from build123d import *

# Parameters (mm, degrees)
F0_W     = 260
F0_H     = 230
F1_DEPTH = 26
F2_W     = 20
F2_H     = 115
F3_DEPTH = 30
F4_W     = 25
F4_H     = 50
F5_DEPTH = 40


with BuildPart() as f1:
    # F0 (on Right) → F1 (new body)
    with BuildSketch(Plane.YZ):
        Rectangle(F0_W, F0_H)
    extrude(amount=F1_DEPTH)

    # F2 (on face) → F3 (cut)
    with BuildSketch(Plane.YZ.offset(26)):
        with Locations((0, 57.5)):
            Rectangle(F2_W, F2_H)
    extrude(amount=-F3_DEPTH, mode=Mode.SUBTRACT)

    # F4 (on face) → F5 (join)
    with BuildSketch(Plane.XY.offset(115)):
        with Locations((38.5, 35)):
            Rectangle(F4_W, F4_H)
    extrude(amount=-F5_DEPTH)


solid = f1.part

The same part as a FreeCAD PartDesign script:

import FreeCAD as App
import Part
import Sketcher
from FreeCAD import Vector
Q = App.Units.Quantity


def add_polygon(sketch, points):
    """Adds a closed chain of lines whose ends are joined by coincident constraints."""
    first, n = sketch.GeometryCount, len(points)
    for a, b in zip(points, points[1:] + points[:1]):
        sketch.addGeometry(Part.LineSegment(App.Vector(*a, 0), App.Vector(*b, 0)), False)
    for i in range(n):
        sketch.addConstraint(Sketcher.Constraint("Coincident", first + i, 2, first + (i + 1) % n, 1))

doc = App.newDocument("Part")
body = doc.addObject("PartDesign::Body", "Body")

# Sketch on YZ plane
sketch1 = body.newObject("Sketcher::SketchObject", "Sketch")
sketch1.AttachmentSupport = (doc.getObject("YZ_Plane"), [""])
sketch1.MapMode = "FlatFace"
add_polygon(sketch1, [(-130, 115), (-130, -115), (130, -115), (130, 115)])  # lines 0-3
sketch1.addConstraint([
    Sketcher.Constraint("Vertical", 0),
    Sketcher.Constraint("Horizontal", 1),
    Sketcher.Constraint("Vertical", 2),
    Sketcher.Constraint("Horizontal", 3),
    Sketcher.Constraint("Symmetric", 0, 2, 2, 2, -1, 1),
    Sketcher.Constraint("DistanceX", 1, 1, 1, 2, Q("260 mm")),
    Sketcher.Constraint("DistanceY", 0, 2, 0, 1, Q("230 mm")),
])
pad1 = body.newObject("PartDesign::Pad", "Pad")
pad1.Profile = sketch1
pad1.Length = 26

# Sketch on YZ plane
sketch2 = body.newObject("Sketcher::SketchObject", "Sketch001")
sketch2.AttachmentSupport = (doc.getObject("YZ_Plane"), [""])
sketch2.MapMode = "FlatFace"
sketch2.AttachmentOffset = App.Placement(Vector(0, 0, 26), App.Rotation())
add_polygon(sketch2, [(-10, 115), (-10, 0), (10, 0), (10, 115)])  # lines 0-3
sketch2.addConstraint([
    Sketcher.Constraint("Vertical", 0),
    Sketcher.Constraint("Horizontal", 1),
    Sketcher.Constraint("Vertical", 2),
    Sketcher.Constraint("Horizontal", 3),
    Sketcher.Constraint("Symmetric", 0, 2, 1, 2, -1, 1),
    Sketcher.Constraint("DistanceX", 1, 1, 1, 2, Q("20 mm")),
    Sketcher.Constraint("DistanceY", 0, 2, 0, 1, Q("115 mm")),
])
pocket1 = body.newObject("PartDesign::Pocket", "Pocket")
pocket1.Profile = sketch2
pocket1.Length = 30

# Sketch on XY plane
sketch3 = body.newObject("Sketcher::SketchObject", "Sketch002")
sketch3.AttachmentSupport = (doc.getObject("XY_Plane"), [""])
sketch3.MapMode = "FlatFace"
sketch3.AttachmentOffset = App.Placement(Vector(0, 0, 115), App.Rotation())
add_polygon(sketch3, [(26, 60), (26, 10), (51, 10), (51, 60)])  # lines 0-3
sketch3.addConstraint([
    Sketcher.Constraint("Vertical", 0),
    Sketcher.Constraint("Horizontal", 1),
    Sketcher.Constraint("Vertical", 2),
    Sketcher.Constraint("Horizontal", 3),
    Sketcher.Constraint("DistanceX", 1, 1, 1, 2, Q("25 mm")),
    Sketcher.Constraint("DistanceY", 0, 2, 0, 1, Q("50 mm")),
    Sketcher.Constraint("DistanceX", -1, 1, 0, 2, Q("26 mm")),
    Sketcher.Constraint("DistanceY", -1, 1, 0, 2, Q("10 mm")),
])
pad2 = body.newObject("PartDesign::Pad", "Pad001")
pad2.Profile = sketch3
pad2.Length = 40
pad2.Reversed = True

doc.recompute()
